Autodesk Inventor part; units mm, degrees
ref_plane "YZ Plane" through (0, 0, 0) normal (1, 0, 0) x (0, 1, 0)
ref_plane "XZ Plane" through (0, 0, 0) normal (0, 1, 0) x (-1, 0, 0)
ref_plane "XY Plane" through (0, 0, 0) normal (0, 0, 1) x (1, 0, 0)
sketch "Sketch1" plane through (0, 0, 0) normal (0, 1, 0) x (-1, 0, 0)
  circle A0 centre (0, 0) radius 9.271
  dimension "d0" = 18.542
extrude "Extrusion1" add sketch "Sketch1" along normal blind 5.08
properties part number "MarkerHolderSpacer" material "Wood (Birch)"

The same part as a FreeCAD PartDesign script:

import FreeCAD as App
import Part
import Sketcher
Q = App.Units.Quantity

doc = App.newDocument("Part")
body = doc.addObject("PartDesign::Body", "Body")

# Sketch on XZ plane
sketch1 = body.newObject("Sketcher::SketchObject", "Sketch")
sketch1.AttachmentSupport = (doc.getObject("XZ_Plane"), [""])
sketch1.MapMode = "FlatFace"
sketch1.addGeometry(Part.Circle(App.Vector(0, 0, 0), App.Vector(0, 0, 1), 9), False)
sketch1.addConstraint(Sketcher.Constraint("Coincident", 0, 3, -1, 1))
sketch1.addConstraint(Sketcher.Constraint("Diameter", 0, Q("0.73 in")))
pad1 = body.newObject("PartDesign::Pad", "Pad")
pad1.Profile = sketch1
pad1.Length = Q("0.2 in")
pad1.Reversed = True

doc.recompute()
